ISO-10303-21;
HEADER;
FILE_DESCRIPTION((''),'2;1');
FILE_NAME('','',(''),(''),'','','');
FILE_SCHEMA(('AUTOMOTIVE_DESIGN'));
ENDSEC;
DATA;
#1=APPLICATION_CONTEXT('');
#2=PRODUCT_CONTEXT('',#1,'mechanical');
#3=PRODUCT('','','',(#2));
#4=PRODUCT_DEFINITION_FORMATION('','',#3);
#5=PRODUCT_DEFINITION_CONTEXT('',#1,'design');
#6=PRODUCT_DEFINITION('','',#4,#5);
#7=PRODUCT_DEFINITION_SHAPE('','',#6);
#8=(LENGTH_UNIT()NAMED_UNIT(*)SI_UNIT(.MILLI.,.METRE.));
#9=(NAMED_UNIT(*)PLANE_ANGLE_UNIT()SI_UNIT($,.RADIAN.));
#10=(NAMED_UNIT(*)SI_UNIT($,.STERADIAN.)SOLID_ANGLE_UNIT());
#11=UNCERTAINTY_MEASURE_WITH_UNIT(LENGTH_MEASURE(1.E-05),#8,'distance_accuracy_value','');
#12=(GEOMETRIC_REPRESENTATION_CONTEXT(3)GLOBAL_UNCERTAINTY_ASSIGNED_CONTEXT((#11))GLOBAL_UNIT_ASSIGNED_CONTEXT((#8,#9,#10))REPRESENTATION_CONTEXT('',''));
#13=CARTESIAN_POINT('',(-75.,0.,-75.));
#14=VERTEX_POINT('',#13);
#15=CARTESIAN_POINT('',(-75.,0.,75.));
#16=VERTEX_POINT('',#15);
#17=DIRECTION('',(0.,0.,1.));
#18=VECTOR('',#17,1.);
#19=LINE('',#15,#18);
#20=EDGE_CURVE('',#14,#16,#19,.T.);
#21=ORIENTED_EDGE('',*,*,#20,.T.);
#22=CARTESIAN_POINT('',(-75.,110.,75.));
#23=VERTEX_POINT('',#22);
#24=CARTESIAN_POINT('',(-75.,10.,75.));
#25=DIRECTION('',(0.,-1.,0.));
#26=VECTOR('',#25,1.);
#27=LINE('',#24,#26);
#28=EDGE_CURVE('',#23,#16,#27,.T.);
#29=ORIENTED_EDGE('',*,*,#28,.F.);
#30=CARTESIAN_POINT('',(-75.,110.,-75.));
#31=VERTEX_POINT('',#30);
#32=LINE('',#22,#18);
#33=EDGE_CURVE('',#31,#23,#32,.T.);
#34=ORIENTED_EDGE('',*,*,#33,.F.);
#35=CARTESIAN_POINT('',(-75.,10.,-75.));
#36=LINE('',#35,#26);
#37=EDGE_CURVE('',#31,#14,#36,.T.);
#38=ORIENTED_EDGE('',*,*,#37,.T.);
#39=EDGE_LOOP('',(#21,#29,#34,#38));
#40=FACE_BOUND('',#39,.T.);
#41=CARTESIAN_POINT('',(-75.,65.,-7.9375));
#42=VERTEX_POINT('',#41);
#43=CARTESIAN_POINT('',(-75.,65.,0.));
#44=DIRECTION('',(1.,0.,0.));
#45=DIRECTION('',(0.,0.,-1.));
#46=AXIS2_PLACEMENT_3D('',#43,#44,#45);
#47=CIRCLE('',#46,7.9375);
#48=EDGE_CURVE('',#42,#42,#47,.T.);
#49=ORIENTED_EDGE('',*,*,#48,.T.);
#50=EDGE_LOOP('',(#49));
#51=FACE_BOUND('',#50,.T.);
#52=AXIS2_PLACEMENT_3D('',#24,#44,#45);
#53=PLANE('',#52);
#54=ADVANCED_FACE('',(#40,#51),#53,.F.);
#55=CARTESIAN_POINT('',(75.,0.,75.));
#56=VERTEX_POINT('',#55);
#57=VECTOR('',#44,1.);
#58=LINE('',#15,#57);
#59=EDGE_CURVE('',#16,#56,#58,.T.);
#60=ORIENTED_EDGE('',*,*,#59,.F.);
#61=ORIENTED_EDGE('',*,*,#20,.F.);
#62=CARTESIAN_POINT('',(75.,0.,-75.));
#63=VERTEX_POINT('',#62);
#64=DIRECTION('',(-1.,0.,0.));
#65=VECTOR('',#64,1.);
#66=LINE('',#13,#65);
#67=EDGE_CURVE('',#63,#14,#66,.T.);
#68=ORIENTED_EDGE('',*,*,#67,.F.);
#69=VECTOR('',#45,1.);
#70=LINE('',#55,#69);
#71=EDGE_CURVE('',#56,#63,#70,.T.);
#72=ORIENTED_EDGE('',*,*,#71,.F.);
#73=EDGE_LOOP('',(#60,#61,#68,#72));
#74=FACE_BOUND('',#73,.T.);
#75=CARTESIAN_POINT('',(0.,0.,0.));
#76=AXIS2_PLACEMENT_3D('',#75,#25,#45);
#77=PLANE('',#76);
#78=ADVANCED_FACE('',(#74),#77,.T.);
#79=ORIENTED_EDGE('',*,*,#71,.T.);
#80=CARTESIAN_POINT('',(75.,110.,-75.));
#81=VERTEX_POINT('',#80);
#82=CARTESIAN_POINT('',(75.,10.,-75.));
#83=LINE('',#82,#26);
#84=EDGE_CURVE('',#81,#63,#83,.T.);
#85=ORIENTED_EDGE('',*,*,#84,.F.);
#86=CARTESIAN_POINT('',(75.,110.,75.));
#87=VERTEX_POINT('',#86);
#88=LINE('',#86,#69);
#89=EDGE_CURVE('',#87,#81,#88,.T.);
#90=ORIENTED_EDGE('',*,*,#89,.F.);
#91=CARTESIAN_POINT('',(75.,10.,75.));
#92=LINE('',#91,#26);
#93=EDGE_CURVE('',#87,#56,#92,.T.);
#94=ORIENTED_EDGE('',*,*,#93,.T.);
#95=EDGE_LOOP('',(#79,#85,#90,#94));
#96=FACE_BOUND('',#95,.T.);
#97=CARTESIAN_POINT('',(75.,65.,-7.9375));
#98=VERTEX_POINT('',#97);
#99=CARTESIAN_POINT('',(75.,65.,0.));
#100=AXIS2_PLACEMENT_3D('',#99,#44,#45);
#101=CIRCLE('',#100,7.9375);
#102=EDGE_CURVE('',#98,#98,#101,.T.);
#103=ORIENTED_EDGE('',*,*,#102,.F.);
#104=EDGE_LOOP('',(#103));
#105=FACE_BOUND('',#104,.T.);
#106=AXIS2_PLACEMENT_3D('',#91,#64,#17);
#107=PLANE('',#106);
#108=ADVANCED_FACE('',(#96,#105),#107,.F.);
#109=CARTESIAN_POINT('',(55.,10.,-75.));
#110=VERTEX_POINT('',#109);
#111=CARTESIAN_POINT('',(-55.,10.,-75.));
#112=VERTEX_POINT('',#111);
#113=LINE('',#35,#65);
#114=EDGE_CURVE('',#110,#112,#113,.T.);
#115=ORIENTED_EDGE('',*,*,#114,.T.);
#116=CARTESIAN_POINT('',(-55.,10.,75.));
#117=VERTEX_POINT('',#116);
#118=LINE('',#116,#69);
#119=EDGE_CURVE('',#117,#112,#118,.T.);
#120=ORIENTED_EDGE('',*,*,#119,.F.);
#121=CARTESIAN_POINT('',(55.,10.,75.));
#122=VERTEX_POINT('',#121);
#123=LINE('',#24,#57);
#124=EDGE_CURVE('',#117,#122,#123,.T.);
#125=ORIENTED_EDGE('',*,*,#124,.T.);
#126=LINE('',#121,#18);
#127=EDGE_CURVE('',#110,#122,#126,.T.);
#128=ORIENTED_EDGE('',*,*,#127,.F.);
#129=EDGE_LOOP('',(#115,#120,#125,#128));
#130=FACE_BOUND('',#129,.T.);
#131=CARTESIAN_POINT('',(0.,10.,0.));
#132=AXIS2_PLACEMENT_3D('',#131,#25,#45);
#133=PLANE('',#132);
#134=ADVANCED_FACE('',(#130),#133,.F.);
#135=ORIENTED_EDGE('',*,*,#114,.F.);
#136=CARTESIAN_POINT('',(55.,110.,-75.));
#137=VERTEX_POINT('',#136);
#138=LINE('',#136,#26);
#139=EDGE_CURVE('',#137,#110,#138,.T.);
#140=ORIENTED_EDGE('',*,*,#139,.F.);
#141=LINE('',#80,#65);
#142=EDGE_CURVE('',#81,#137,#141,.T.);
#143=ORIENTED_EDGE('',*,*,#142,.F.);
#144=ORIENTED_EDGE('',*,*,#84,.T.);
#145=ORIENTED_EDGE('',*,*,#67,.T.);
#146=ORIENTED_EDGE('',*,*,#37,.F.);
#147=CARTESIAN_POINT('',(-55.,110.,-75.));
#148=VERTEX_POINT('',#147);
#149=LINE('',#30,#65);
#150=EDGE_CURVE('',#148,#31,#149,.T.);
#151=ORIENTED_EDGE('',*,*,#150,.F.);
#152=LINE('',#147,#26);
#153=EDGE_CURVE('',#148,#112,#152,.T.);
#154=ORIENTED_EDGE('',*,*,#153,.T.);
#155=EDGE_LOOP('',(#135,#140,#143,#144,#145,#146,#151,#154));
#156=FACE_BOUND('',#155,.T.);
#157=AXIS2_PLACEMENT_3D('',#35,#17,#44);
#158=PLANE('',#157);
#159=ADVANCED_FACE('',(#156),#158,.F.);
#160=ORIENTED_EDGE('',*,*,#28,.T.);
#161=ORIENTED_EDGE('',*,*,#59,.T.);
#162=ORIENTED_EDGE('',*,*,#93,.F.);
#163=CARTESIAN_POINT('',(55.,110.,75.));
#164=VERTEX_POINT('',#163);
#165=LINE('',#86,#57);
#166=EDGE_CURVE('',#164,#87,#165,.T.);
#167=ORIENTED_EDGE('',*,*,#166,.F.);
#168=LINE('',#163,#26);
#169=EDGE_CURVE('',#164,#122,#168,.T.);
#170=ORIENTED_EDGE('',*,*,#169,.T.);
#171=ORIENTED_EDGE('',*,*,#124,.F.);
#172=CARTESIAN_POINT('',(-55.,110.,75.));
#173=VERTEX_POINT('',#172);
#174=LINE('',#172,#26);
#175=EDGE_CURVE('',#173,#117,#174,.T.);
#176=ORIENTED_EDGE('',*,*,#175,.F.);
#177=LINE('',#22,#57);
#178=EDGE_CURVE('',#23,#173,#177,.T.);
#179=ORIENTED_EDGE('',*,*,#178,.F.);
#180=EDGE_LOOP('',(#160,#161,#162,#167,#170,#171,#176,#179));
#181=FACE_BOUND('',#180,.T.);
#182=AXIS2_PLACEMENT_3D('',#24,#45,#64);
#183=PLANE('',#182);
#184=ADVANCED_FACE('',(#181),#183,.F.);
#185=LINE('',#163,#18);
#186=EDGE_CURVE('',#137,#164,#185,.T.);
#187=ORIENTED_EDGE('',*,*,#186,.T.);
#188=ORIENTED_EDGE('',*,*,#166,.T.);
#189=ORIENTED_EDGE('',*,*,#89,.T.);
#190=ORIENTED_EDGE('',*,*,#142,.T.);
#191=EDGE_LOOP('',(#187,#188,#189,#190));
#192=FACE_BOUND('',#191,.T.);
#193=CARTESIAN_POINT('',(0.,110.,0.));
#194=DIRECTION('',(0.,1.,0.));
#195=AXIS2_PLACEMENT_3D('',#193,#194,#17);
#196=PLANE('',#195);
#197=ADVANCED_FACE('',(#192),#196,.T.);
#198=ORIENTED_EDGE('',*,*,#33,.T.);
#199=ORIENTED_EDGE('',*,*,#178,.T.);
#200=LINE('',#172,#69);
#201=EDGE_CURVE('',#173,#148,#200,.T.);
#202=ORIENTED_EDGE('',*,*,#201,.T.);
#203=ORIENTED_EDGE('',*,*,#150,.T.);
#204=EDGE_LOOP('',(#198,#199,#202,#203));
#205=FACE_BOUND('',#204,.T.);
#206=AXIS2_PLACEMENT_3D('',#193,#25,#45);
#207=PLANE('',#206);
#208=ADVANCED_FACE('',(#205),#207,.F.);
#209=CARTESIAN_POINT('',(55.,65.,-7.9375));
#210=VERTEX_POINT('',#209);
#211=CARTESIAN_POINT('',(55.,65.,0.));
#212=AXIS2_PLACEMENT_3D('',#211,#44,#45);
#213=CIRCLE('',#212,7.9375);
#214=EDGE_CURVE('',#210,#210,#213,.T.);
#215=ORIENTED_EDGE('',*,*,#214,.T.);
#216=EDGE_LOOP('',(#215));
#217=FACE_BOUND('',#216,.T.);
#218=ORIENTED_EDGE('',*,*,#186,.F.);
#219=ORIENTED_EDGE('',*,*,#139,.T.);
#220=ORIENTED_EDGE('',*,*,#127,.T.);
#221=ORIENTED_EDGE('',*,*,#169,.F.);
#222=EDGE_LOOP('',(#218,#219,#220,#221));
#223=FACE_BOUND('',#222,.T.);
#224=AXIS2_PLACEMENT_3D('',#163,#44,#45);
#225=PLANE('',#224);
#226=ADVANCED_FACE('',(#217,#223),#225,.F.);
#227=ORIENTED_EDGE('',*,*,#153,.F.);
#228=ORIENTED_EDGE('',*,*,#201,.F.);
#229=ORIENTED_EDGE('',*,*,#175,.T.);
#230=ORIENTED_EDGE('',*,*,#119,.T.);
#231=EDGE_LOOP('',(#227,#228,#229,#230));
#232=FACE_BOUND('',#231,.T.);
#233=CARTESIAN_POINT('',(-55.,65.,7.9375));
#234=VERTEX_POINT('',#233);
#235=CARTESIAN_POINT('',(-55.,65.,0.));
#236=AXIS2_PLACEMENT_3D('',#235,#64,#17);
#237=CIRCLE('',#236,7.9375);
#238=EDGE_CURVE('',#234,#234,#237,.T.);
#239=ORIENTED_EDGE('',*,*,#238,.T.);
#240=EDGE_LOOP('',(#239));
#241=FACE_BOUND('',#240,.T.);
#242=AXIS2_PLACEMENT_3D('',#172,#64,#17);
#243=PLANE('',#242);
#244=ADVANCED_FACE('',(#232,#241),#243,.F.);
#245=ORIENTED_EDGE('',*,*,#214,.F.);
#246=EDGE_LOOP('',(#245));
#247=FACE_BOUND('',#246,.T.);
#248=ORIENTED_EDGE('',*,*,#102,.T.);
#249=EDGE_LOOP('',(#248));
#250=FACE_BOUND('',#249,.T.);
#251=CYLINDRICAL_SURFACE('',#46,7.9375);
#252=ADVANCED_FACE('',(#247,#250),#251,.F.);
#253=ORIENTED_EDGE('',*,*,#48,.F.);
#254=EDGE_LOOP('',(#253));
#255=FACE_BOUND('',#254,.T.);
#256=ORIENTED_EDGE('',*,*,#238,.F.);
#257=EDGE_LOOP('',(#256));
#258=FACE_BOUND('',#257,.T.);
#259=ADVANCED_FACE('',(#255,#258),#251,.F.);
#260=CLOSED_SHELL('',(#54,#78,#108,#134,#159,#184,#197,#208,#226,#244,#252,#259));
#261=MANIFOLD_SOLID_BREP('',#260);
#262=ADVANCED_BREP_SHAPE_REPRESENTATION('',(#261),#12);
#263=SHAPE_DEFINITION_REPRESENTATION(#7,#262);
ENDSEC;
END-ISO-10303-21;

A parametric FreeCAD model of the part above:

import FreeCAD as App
import Part
import Sketcher

V = App.Vector


def add_polygon(sketch, points):
    """Adds a closed chain of lines whose ends are joined by coincident constraints."""
    first, n = sketch.GeometryCount, len(points)
    for a, b in zip(points, points[1:] + points[:1]):
        sketch.addGeometry(Part.LineSegment(App.Vector(*a, 0), App.Vector(*b, 0)), False)
    for i in range(n):
        sketch.addConstraint(Sketcher.Constraint("Coincident", first + i, 2, first + (i + 1) % n, 1))

doc = App.newDocument("Part")
body = doc.addObject("PartDesign::Body", "Body")

# Sketch on XZ plane
sketch1 = doc.addObject("Sketcher::SketchObject", "Sketch")
body.addObject(sketch1)
sketch1.AttachmentSupport = (doc.XZ_Plane, [""])
sketch1.MapMode = "FlatFace"
add_polygon(sketch1, [(-75, -75), (-75, 75), (75, 75), (75, -75)])  # lines 0-3
sketch1.addConstraint(Sketcher.Constraint("Vertical", 0))
sketch1.addConstraint(Sketcher.Constraint("Horizontal", 1))
sketch1.addConstraint(Sketcher.Constraint("Vertical", 2))
sketch1.addConstraint(Sketcher.Constraint("Horizontal", 3))
sketch1.addConstraint(Sketcher.Constraint("Symmetric", 0, 2, 2, 2, -1, 1))
sketch1.addConstraint(Sketcher.Constraint("Equal", 3, 0))
sketch1.addConstraint(Sketcher.Constraint("DistanceX", 1, 1, 1, 2, 150.0))
pad1 = doc.addObject("PartDesign::Pad", "Pad")
body.addObject(pad1)
pad1.Profile = sketch1
pad1.Length = 10
pad1.Reversed = True

# Sketch on XZ plane
sketch2 = doc.addObject("Sketcher::SketchObject", "Sketch001")
body.addObject(sketch2)
sketch2.AttachmentSupport = (doc.XZ_Plane, [""])
sketch2.MapMode = "FlatFace"
sketch2.AttachmentOffset = App.Placement(V(0, 0, -10), App.Rotation())
add_polygon(sketch2, [(-75, -75), (-75, 75), (-55, 75), (-55, -75)])  # lines 0-3
add_polygon(sketch2, [(55, -75), (55, 75), (75, 75), (75, -75)])  # lines 4-7
sketch2.addConstraint(Sketcher.Constraint("Vertical", 0))
sketch2.addConstraint(Sketcher.Constraint("Horizontal", 1))
sketch2.addConstraint(Sketcher.Constraint("Vertical", 2))
sketch2.addConstraint(Sketcher.Constraint("Horizontal", 3))
sketch2.addConstraint(Sketcher.Constraint("Vertical", 4))
sketch2.addConstraint(Sketcher.Constraint("Horizontal", 5))
sketch2.addConstraint(Sketcher.Constraint("Vertical", 6))
sketch2.addConstraint(Sketcher.Constraint("Horizontal", 7))
sketch2.addConstraint(Sketcher.Constraint("Symmetric", 2, 2, 4, 2, -1, 1))
sketch2.addConstraint(Sketcher.Constraint("Symmetric", 0, 2, 6, 2, -1, 1))
sketch2.addConstraint(Sketcher.Constraint("Horizontal", 1, 2, 4, 2))
sketch2.addConstraint(Sketcher.Constraint("DistanceX", 1, 1, 1, 2, 20.0))
sketch2.addConstraint(Sketcher.Constraint("DistanceY", 0, 1, 0, 2, 150.0))
sketch2.addConstraint(Sketcher.Constraint("DistanceX", 0, 2, -1, 1, 75.0))
pad2 = doc.addObject("PartDesign::Pad", "Pad001")
body.addObject(pad2)
pad2.Profile = sketch2
pad2.Length = 100
pad2.Reversed = True

# Sketch on YZ plane
sketch3 = doc.addObject("Sketcher::SketchObject", "Sketch002")
body.addObject(sketch3)
sketch3.AttachmentSupport = (doc.YZ_Plane, [""])
sketch3.MapMode = "FlatFace"
sketch3.AttachmentOffset = App.Placement(V(0, 0, 75), App.Rotation())
sketch3.addGeometry(Part.Circle(V(65, 0, 0), V(0, 0, 1), 8), False)
sketch3.addConstraint(Sketcher.Constraint("PointOnObject", 0, 3, -1))
sketch3.addConstraint(Sketcher.Constraint("Diameter", 0, 15.875))
sketch3.addConstraint(Sketcher.Constraint("DistanceX", -1, 1, 0, 3, 65.0))
pocket1 = doc.addObject("PartDesign::Pocket", "Pocket")
body.addObject(pocket1)
pocket1.Profile = sketch3
pocket1.Type = "ThroughAll"

doc.recompute()
